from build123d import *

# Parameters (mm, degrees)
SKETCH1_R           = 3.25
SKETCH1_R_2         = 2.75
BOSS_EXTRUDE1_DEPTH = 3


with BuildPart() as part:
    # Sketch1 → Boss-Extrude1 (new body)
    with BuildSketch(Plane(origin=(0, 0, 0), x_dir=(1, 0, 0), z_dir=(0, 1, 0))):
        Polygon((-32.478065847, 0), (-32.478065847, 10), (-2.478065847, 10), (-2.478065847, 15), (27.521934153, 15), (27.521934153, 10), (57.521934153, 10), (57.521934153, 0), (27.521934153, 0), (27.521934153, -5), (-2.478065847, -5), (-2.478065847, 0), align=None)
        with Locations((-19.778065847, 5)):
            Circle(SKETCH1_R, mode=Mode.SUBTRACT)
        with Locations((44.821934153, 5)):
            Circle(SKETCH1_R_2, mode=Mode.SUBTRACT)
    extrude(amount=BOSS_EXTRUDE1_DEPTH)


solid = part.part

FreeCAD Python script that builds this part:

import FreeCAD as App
import Part
import Sketcher

doc = App.newDocument("Part")
body = doc.addObject("PartDesign::Body", "Body")

# Sketch on XZ plane
sketch1 = body.newObject("Sketcher::SketchObject", "Sketch")
sketch1.AttachmentSupport = (doc.getObject("XZ_Plane"), [""])
sketch1.MapMode = "FlatFace"
sketch1.addGeometry([
    Part.LineSegment(App.Vector(-32.5, -10, 0), App.Vector(-32.5, 0, 0)),  # 0
    Part.LineSegment(App.Vector(-32.5, 0, 0), App.Vector(-2.5, 0, 0)),  # 1
    Part.LineSegment(App.Vector(-2.5, 0, 0), App.Vector(-2.5, 5, 0)),  # 2
    Part.LineSegment(App.Vector(-2.5, 5, 0), App.Vector(27.5, 5, 0)),  # 3
    Part.LineSegment(App.Vector(27.5, 5, 0), App.Vector(27.5, 0, 0)),  # 4
    Part.LineSegment(App.Vector(27.5, 0, 0), App.Vector(57.5, 0, 0)),  # 5
    Part.LineSegment(App.Vector(57.5, 0, 0), App.Vector(57.5, -10, 0)),  # 6
    Part.LineSegment(App.Vector(57.5, -10, 0), App.Vector(27.5, -10, 0)),  # 7
    Part.LineSegment(App.Vector(27.5, -10, 0), App.Vector(27.5, -15, 0)),  # 8
    Part.LineSegment(App.Vector(27.5, -15, 0), App.Vector(-2.5, -15, 0)),  # 9
    Part.LineSegment(App.Vector(-2.5, -15, 0), App.Vector(-2.5, -10, 0)),  # 10
    Part.LineSegment(App.Vector(-2.5, -10, 0), App.Vector(-32.5, -10, 0)),  # 11
    Part.Circle(App.Vector(44.8, -5, 0), App.Vector(0, 0, 1), 2.8),  # 12
    Part.Circle(App.Vector(-19.8, -5, 0), App.Vector(0, 0, 1), 3.2),  # 13
], False)
sketch1.addConstraint([
    Sketcher.Constraint("Coincident", 0, 2, 1, 1),
    Sketcher.Constraint("Coincident", 1, 2, 2, 1),
    Sketcher.Constraint("Coincident", 2, 2, 3, 1),
    Sketcher.Constraint("Coincident", 3, 2, 4, 1),
    Sketcher.Constraint("Coincident", 4, 2, 5, 1),
    Sketcher.Constraint("Coincident", 5, 2, 6, 1),
    Sketcher.Constraint("Coincident", 6, 2, 7, 1),
    Sketcher.Constraint("Coincident", 7, 2, 8, 1),
    Sketcher.Constraint("Coincident", 8, 2, 9, 1),
    Sketcher.Constraint("Coincident", 9, 2, 10, 1),
    Sketcher.Constraint("Coincident", 10, 2, 11, 1),
    Sketcher.Constraint("Coincident", 11, 2, 0, 1),
    Sketcher.Constraint("Vertical", 0),
    Sketcher.Constraint("Horizontal", 1),
    Sketcher.Constraint("Vertical", 2),
    Sketcher.Constraint("Horizontal", 3),
    Sketcher.Constraint("Vertical", 4),
    Sketcher.Constraint("Horizontal", 5),
    Sketcher.Constraint("Vertical", 6),
    Sketcher.Constraint("Horizontal", 7),
    Sketcher.Constraint("Vertical", 8),
    Sketcher.Constraint("Horizontal", 9),
    Sketcher.Constraint("Vertical", 10),
    Sketcher.Constraint("Horizontal", 11),
    Sketcher.Constraint("PointOnObject", 0, 2, -1),
    Sketcher.Constraint("PointOnObject", 4, 2, -1),
    Sketcher.Constraint("Horizontal", 12, 3, 13, 3),
    Sketcher.Constraint("Horizontal", 7, 2, 10, 2),
    Sketcher.Constraint("Vertical", 4, 2, 7, 2),
    Sketcher.Constraint("Vertical", 2, 2, 9, 2),
    Sketcher.Constraint("Equal", 1, 3),
    Sketcher.Constraint("Equal", 3, 5),
    Sketcher.Constraint("Equal", 4, 8),
    Sketcher.Constraint("Diameter", 12, 5.5),
    Sketcher.Constraint("Diameter", 13, 6.5),
    Sketcher.Constraint("DistanceX", 1, 1, 1, 2, 30.0),
    Sketcher.Constraint("DistanceY", 0, 1, 0, 2, 10.0),
    Sketcher.Constraint("DistanceY", 2, 1, 2, 2, 5.0),
    Sketcher.Constraint("DistanceY", 12, 3, -1, 1, 5.0),
    Sketcher.Constraint("DistanceX", 13, 3, 12, 3, 64.6),
    Sketcher.Constraint("DistanceX", 0, 2, 13, 3, 12.7),
    Sketcher.Constraint("DistanceX", -1, 1, 12, 3, 44.821934),
])
pad1 = body.newObject("PartDesign::Pad", "Pad")
pad1.Profile = sketch1
pad1.Length = 3
pad1.Reversed = True

doc.recompute()
